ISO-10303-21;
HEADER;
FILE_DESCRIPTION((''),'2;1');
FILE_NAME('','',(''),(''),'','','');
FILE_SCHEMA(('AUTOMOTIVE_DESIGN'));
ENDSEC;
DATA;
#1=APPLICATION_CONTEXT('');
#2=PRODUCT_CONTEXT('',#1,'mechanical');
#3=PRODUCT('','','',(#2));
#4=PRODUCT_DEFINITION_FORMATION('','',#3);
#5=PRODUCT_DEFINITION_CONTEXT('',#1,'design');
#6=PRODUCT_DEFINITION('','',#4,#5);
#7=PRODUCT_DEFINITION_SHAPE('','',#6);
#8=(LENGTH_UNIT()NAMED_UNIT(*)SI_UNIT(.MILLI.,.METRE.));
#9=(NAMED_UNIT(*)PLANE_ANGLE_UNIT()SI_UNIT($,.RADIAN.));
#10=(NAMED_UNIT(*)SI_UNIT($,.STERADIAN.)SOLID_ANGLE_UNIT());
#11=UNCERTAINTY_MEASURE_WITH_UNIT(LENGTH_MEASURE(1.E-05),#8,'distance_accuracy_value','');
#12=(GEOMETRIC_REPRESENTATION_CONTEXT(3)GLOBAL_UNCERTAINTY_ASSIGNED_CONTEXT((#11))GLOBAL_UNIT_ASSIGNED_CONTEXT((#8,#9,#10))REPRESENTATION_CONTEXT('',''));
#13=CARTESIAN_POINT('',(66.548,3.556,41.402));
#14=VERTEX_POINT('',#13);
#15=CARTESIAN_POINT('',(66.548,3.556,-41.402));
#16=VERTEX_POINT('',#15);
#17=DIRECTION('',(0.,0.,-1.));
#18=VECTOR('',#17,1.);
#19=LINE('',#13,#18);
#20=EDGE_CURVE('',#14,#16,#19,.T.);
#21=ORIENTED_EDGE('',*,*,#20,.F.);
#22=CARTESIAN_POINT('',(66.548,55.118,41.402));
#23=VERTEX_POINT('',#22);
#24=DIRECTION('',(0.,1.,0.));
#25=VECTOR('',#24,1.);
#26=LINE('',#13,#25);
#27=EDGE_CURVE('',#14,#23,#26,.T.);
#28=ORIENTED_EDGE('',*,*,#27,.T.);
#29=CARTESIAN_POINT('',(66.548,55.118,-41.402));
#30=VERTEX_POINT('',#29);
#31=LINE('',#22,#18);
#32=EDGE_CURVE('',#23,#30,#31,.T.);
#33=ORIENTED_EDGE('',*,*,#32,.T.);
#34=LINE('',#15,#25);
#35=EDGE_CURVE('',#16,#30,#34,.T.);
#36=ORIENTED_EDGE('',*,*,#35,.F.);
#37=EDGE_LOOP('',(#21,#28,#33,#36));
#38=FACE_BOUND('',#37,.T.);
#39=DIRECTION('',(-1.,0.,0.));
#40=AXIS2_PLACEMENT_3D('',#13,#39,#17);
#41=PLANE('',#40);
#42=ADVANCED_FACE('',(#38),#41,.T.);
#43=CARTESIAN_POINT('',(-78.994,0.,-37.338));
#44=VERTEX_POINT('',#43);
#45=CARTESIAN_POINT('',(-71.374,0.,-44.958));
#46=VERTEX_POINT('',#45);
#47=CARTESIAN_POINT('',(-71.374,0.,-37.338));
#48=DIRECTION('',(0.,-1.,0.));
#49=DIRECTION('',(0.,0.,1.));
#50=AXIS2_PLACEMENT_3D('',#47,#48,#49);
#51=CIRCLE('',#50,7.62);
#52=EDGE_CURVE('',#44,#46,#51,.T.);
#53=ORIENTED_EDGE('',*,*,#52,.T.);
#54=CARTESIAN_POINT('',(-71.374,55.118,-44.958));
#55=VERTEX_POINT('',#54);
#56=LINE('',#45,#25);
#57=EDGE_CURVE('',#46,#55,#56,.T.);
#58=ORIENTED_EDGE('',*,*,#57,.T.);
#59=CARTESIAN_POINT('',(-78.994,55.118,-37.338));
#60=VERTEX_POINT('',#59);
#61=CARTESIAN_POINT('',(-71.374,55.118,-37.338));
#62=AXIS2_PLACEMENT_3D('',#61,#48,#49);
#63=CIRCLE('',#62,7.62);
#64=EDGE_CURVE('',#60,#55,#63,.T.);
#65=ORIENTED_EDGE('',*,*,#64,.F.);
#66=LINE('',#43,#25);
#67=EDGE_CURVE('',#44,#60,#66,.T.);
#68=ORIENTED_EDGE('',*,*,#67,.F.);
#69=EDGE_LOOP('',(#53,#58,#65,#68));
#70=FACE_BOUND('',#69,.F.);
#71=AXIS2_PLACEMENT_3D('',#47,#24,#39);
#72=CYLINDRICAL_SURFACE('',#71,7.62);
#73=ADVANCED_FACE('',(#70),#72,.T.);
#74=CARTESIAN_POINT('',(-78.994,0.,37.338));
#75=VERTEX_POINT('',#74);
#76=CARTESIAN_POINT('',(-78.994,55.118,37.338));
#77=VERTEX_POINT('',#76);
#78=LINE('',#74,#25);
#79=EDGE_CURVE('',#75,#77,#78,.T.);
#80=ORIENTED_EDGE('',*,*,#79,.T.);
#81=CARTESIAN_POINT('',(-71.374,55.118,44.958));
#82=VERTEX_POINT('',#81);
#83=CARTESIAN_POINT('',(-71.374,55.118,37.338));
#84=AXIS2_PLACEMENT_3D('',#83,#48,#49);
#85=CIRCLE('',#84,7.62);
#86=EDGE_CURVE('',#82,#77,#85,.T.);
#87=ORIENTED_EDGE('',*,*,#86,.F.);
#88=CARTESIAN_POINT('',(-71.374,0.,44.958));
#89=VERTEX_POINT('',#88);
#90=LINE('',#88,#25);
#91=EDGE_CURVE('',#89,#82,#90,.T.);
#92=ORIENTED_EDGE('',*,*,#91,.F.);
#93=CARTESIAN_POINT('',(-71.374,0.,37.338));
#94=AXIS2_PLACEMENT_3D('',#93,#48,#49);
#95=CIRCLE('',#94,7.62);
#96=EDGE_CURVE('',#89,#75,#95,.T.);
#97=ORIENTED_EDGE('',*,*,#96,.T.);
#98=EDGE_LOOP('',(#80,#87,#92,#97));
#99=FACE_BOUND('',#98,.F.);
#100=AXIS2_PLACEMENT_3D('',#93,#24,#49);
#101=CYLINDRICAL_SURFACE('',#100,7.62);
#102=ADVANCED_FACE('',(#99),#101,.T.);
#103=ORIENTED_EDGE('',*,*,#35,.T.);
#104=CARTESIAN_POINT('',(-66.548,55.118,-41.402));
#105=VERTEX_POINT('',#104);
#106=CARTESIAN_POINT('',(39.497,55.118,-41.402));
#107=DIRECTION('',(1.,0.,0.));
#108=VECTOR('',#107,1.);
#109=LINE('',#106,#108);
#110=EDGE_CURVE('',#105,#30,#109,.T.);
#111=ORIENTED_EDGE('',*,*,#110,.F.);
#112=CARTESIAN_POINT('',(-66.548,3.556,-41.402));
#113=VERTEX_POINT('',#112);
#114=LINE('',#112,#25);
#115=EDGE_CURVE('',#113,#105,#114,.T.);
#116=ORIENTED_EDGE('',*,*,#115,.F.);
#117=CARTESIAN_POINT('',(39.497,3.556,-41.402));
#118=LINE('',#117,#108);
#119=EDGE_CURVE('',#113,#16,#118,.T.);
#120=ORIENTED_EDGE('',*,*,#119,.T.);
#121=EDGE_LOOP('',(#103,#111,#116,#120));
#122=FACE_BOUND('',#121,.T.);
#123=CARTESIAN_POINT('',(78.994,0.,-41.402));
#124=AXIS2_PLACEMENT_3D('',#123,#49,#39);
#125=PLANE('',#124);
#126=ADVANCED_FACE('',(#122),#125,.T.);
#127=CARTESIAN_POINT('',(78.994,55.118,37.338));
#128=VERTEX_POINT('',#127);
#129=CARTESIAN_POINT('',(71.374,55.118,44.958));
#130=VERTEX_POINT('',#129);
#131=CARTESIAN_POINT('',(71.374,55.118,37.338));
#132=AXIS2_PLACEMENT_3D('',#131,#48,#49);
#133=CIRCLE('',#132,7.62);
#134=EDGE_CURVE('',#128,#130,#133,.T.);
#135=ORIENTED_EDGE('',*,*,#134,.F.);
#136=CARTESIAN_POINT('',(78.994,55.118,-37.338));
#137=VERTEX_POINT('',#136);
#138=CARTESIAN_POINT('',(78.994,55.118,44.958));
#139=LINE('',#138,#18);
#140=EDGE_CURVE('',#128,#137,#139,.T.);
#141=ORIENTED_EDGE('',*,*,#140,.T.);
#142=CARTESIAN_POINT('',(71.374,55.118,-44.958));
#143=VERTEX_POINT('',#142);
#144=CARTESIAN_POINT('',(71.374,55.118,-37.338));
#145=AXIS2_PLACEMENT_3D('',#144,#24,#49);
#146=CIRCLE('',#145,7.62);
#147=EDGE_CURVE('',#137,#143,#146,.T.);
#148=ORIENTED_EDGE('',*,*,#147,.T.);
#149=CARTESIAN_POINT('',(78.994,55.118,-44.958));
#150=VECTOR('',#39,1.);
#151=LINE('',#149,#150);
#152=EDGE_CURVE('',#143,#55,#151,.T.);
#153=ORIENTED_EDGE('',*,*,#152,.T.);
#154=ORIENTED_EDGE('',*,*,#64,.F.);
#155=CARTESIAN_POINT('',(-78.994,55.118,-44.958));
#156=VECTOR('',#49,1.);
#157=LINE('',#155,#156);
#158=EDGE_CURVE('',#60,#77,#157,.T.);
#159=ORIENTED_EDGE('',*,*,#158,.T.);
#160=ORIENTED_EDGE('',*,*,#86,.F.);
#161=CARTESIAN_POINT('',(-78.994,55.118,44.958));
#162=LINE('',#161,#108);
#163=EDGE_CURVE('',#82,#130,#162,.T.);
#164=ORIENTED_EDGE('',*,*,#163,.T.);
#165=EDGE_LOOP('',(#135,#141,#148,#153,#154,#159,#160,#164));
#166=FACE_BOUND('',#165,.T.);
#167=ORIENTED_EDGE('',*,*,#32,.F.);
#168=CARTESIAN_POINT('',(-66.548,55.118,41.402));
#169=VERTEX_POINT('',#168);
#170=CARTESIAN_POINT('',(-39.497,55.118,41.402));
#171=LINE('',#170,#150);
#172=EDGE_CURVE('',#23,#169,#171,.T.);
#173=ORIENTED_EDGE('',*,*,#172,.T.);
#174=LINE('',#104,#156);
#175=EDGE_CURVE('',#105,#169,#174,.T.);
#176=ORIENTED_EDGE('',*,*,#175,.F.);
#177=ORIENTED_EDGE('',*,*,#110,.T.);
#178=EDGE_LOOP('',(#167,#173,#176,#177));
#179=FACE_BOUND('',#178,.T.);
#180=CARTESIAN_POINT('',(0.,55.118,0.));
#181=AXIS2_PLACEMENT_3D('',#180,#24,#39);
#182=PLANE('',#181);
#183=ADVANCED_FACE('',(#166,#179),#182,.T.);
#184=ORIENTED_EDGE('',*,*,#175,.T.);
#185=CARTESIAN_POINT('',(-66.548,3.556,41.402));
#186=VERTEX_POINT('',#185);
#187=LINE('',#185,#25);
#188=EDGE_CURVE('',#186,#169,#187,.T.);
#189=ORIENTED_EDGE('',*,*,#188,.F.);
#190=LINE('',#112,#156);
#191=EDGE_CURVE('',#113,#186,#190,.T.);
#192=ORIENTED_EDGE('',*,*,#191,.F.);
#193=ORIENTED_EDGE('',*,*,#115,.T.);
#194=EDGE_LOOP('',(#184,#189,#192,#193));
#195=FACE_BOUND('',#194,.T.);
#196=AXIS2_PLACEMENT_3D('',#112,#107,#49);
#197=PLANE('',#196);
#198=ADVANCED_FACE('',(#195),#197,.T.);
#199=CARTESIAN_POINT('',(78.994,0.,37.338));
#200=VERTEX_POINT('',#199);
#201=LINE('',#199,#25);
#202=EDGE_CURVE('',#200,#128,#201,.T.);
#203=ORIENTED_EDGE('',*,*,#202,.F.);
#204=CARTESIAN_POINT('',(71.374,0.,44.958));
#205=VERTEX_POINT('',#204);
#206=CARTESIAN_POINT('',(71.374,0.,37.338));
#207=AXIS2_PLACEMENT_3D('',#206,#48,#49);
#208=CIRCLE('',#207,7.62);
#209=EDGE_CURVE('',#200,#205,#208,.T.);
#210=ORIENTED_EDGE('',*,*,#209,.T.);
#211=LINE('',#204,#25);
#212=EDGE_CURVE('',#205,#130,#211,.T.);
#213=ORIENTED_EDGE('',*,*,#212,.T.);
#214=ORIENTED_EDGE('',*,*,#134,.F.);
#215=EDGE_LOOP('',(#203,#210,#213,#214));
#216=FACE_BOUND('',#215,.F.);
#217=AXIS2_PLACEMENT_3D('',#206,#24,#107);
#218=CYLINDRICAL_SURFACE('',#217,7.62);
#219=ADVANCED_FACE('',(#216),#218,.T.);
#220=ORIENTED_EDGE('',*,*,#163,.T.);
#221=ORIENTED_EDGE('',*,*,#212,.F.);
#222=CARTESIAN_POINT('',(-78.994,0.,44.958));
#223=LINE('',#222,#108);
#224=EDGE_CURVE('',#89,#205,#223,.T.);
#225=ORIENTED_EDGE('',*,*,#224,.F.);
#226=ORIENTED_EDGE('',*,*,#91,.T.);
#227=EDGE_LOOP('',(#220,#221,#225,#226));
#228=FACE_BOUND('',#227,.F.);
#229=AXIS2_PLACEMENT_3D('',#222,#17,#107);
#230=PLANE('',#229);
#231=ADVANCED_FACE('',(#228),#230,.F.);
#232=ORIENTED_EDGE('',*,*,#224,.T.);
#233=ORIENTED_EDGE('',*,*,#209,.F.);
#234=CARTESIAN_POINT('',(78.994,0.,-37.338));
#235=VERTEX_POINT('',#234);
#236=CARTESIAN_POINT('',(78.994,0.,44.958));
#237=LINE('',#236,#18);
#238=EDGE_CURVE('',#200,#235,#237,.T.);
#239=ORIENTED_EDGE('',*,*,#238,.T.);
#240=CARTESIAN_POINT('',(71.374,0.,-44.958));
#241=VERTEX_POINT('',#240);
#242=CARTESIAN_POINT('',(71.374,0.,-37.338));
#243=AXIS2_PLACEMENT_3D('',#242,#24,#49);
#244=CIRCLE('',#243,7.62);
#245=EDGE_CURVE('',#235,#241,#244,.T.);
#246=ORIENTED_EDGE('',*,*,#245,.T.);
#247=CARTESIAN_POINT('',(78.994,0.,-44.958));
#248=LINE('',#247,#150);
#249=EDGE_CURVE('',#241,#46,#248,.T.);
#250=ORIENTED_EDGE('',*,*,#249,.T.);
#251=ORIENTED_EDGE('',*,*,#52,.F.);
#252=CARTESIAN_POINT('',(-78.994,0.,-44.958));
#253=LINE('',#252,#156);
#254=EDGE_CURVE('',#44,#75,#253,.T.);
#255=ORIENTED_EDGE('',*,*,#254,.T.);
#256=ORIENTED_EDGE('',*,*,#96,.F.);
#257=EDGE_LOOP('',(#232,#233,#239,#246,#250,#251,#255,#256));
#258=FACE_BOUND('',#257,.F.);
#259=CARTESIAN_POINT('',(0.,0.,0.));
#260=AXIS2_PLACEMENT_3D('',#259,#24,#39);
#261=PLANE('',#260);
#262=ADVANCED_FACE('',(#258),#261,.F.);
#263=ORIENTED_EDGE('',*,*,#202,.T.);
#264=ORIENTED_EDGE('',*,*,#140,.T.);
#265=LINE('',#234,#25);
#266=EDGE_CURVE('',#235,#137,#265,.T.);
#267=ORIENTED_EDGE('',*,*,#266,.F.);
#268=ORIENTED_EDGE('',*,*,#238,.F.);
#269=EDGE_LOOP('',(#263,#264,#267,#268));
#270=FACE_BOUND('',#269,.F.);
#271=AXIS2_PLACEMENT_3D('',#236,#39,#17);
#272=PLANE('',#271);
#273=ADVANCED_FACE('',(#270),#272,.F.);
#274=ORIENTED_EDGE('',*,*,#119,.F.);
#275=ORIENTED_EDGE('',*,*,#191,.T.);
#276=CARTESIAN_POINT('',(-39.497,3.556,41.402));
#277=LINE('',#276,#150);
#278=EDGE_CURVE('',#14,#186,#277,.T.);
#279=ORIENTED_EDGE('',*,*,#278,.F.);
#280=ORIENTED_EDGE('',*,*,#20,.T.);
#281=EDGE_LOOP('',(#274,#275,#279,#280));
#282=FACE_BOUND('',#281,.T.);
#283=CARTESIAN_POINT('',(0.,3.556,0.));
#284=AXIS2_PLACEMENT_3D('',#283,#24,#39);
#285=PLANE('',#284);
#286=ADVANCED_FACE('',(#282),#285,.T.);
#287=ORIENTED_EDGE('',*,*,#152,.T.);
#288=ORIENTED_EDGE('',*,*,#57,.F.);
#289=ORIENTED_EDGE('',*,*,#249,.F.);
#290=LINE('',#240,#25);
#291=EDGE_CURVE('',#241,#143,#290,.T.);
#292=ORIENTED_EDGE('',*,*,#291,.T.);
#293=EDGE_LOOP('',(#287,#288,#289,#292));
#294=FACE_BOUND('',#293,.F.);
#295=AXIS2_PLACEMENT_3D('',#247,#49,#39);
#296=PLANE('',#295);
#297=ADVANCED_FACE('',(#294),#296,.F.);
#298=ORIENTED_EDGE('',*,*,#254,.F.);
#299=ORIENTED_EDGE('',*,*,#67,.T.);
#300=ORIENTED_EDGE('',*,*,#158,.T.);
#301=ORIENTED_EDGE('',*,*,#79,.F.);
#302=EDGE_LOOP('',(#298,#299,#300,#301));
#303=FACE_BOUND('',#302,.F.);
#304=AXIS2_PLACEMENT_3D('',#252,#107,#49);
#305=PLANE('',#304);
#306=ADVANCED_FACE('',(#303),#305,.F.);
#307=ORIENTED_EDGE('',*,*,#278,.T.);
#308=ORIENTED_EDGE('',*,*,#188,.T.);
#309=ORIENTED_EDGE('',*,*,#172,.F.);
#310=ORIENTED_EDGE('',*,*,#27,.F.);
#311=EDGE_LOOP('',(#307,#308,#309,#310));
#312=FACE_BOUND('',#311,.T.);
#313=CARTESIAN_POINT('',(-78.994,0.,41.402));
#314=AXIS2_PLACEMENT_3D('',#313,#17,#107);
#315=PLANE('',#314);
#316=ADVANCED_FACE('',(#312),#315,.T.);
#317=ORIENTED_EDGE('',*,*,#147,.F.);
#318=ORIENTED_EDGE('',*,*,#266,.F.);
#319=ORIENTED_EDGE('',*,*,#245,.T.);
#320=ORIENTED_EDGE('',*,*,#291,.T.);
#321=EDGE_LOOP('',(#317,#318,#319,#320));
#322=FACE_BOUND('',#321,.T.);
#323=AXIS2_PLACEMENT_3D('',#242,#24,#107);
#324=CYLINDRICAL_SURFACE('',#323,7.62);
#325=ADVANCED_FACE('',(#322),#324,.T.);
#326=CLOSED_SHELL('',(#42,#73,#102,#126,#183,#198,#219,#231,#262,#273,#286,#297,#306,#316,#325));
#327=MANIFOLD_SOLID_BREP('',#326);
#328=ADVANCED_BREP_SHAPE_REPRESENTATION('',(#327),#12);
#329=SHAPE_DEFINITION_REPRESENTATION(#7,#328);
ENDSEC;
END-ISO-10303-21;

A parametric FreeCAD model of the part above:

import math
import FreeCAD as App
import Part
import Sketcher
Q = App.Units.Quantity


def edges_at(feature, points):
    """Names of the edges that pass closest to the given points."""
    edges = feature.Shape.Edges
    near = lambda p: min(range(len(edges)), key=lambda i: edges[i].distToShape(Part.Vertex(*p))[0])
    return sorted({f"Edge{near(p) + 1}" for p in points})


def faces_at(feature, points):
    """Names of the faces that lie closest to the given points."""
    faces = feature.Shape.Faces
    near = lambda p: min(range(len(faces)), key=lambda i: faces[i].distToShape(Part.Vertex(*p))[0])
    return sorted({f"Face{near(p) + 1}" for p in points})

doc = App.newDocument("Part")
params = doc.addObject("Spreadsheet::Sheet", "Params")
for row, (alias, value) in enumerate([
    ("sketch1_width", "6.22 in"),
    ("sketch1_height", "3.54 in"),
    ("pad1_length", "2.17 in"),
    ("fillet_radius", "0.3 in"),
    ("thickness_wall", "0.14 in"),
    ("sketch2_radius", "0.16 in"),
    ("sketch2_height", "3.26 in"),
    ("pad2_length", "2.03 in"),
], start=1):
    params.set(f"A{row}", alias)
    params.set(f"B{row}", "=" + value)
    params.setAlias(f"B{row}", alias)

body = doc.addObject("PartDesign::Body", "Body")

# Sketch on XZ plane
sketch1 = doc.addObject("Sketcher::SketchObject", "Sketch")
body.addObject(sketch1)
sketch1.AttachmentSupport = (doc.XZ_Plane, [""])
sketch1.MapMode = "FlatFace"
sketch1.addGeometry(Part.LineSegment(App.Vector(79, 45, 0), App.Vector(79, -45, 0)), False)
sketch1.addGeometry(Part.LineSegment(App.Vector(79, -45, 0), App.Vector(-79, -45, 0)), False)
sketch1.addGeometry(Part.LineSegment(App.Vector(-79, -45, 0), App.Vector(-79, 45, 0)), False)
sketch1.addGeometry(Part.LineSegment(App.Vector(-79, 45, 0), App.Vector(79, 45, 0)), False)
sketch1.addConstraint(Sketcher.Constraint("Coincident", 0, 2, 1, 1))
sketch1.addConstraint(Sketcher.Constraint("Coincident", 1, 2, 2, 1))
sketch1.addConstraint(Sketcher.Constraint("Coincident", 2, 2, 3, 1))
sketch1.addConstraint(Sketcher.Constraint("Coincident", 3, 2, 0, 1))
sketch1.addConstraint(Sketcher.Constraint("Vertical", 0))
sketch1.addConstraint(Sketcher.Constraint("Horizontal", 1))
sketch1.addConstraint(Sketcher.Constraint("Vertical", 2))
sketch1.addConstraint(Sketcher.Constraint("Horizontal", 3))
sketch1.addConstraint(Sketcher.Constraint("Symmetric", 0, 2, 2, 2, -1, 1))
sketch1.addConstraint(Sketcher.Constraint("DistanceX", 1, 2, 1, 1, Q("6.22 in")))
sketch1.addConstraint(Sketcher.Constraint("DistanceY", 0, 2, 0, 1, Q("3.54 in")))
sketch1.setExpression("Constraints[9]", "Params.sketch1_width")
sketch1.setExpression("Constraints[10]", "Params.sketch1_height")
pad1 = doc.addObject("PartDesign::Pad", "Pad")
body.addObject(pad1)
pad1.Profile = sketch1
pad1.setExpression("Length", "Params.pad1_length")
pad1.Reversed = True
doc.recompute()

fillet = doc.addObject("PartDesign::Fillet", "Fillet")
body.addObject(fillet)
fillet.Base = (pad1, edges_at(pad1, [
    (78.994, 27.559, 44.958),
    (78.994, 27.559, -44.958),
    (-78.994, 27.559, 44.958),
    (-78.994, 27.559, -44.958),
]))
fillet.setExpression("Radius", "Params.fillet_radius")
doc.recompute()

thickness = doc.addObject("PartDesign::Thickness", "Thickness")
body.addObject(thickness)
thickness.Base = (fillet, faces_at(fillet, [(23.791, 55.118, -14.986)]))
thickness.setExpression("Value", "Params.thickness_wall")
thickness.Reversed = True
thickness.Join = "Intersection"

# Sketch on XZ plane
sketch2 = doc.addObject("Sketcher::SketchObject", "Sketch001")
body.addObject(sketch2)
sketch2.AttachmentSupport = (doc.XZ_Plane, [""])
sketch2.MapMode = "FlatFace"
sketch2.AttachmentOffset = App.Placement(App.Vector(0, 0, -0.14 * 25.4), App.Rotation())
sketch2.addGeometry(Part.ArcOfCircle(Part.Circle(App.Vector(-71.4, 37.3, 0), App.Vector(0, 0, 1), 4.1), math.radians(90), math.radians(180)), False)
sketch2.addGeometry(Part.LineSegment(App.Vector(-71.4, 41.4, 0), App.Vector(-66.5, 41.4, 0)), False)
sketch2.addGeometry(Part.LineSegment(App.Vector(-66.5, 41.4, 0), App.Vector(-66.5, -41.4, 0)), False)
sketch2.addGeometry(Part.LineSegment(App.Vector(-66.5, -41.4, 0), App.Vector(-71.4, -41.4, 0)), False)
sketch2.addGeometry(Part.ArcOfCircle(Part.Circle(App.Vector(-71.4, -37.3, 0), App.Vector(0, 0, 1), 4.1), math.radians(180), math.radians(270)), False)
sketch2.addGeometry(Part.LineSegment(App.Vector(-75.4, -37.3, 0), App.Vector(-75.4, 37.3, 0)), False)
sketch2.addGeometry(Part.LineSegment(App.Vector(66.5, -41.4, 0), App.Vector(66.5, 41.4, 0)), False)
sketch2.addGeometry(Part.LineSegment(App.Vector(66.5, 41.4, 0), App.Vector(71.4, 41.4, 0)), False)
sketch2.addGeometry(Part.ArcOfCircle(Part.Circle(App.Vector(71.4, 37.3, 0), App.Vector(0, 0, 1), 4.1), math.radians(0), math.radians(90)), False)
sketch2.addGeometry(Part.LineSegment(App.Vector(75.4, 37.3, 0), App.Vector(75.4, -37.3, 0)), False)
sketch2.addGeometry(Part.ArcOfCircle(Part.Circle(App.Vector(71.4, -37.3, 0), App.Vector(0, 0, 1), 4.1), math.radians(-90), math.radians(0)), False)
sketch2.addGeometry(Part.LineSegment(App.Vector(71.4, -41.4, 0), App.Vector(66.5, -41.4, 0)), False)
sketch2.addConstraint(Sketcher.Constraint("Tangent", 0, 1, 1, 1))
sketch2.addConstraint(Sketcher.Constraint("Coincident", 1, 2, 2, 1))
sketch2.addConstraint(Sketcher.Constraint("Coincident", 2, 2, 3, 1))
sketch2.addConstraint(Sketcher.Constraint("Tangent", 3, 2, 4, 2))
sketch2.addConstraint(Sketcher.Constraint("Tangent", 4, 1, 5, 1))
sketch2.addConstraint(Sketcher.Constraint("Tangent", 5, 2, 0, 2))
sketch2.addConstraint(Sketcher.Constraint("Coincident", 6, 2, 7, 1))
sketch2.addConstraint(Sketcher.Constraint("Tangent", 7, 2, 8, 2))
sketch2.addConstraint(Sketcher.Constraint("Tangent", 8, 1, 9, 1))
sketch2.addConstraint(Sketcher.Constraint("Tangent", 9, 2, 10, 2))
sketch2.addConstraint(Sketcher.Constraint("Tangent", 10, 1, 11, 1))
sketch2.addConstraint(Sketcher.Constraint("Coincident", 11, 2, 6, 1))
sketch2.addConstraint(Sketcher.Constraint("Horizontal", 1))
sketch2.addConstraint(Sketcher.Constraint("Vertical", 2))
sketch2.addConstraint(Sketcher.Constraint("Horizontal", 3))
sketch2.addConstraint(Sketcher.Constraint("Vertical", 5))
sketch2.addConstraint(Sketcher.Constraint("Vertical", 6))
sketch2.addConstraint(Sketcher.Constraint("Horizontal", 7))
sketch2.addConstraint(Sketcher.Constraint("Vertical", 9))
sketch2.addConstraint(Sketcher.Constraint("Horizontal", 11))
sketch2.addConstraint(Sketcher.Constraint("Equal", 0, 4))
sketch2.addConstraint(Sketcher.Constraint("Equal", 4, 8))
sketch2.addConstraint(Sketcher.Constraint("Equal", 8, 10))
sketch2.addConstraint(Sketcher.Constraint("Symmetric", 4, 3, 8, 3, -1, 1))
sketch2.addConstraint(Sketcher.Constraint("Symmetric", 1, 2, 11, 2, -1, 1))
sketch2.addConstraint(Sketcher.Constraint("Horizontal", 0, 3, 8, 3))
sketch2.addConstraint(Sketcher.Constraint("Radius", 0, Q("0.16 in")))
sketch2.addConstraint(Sketcher.Constraint("DistanceX", 4, 1, 2, 2, Q("0.35 in")))
sketch2.addConstraint(Sketcher.Constraint("DistanceX", 1, 2, 6, 2, Q("5.24 in")))
sketch2.addConstraint(Sketcher.Constraint("DistanceY", 2, 2, 2, 1, Q("3.26 in")))
sketch2.setExpression("Constraints[26]", "Params.sketch2_radius")
sketch2.setExpression("Constraints[29]", "Params.sketch2_height")
pad2 = doc.addObject("PartDesign::Pad", "Pad001")
body.addObject(pad2)
pad2.Profile = sketch2
pad2.setExpression("Length", "Params.pad2_length")
pad2.Reversed = True

doc.recompute()
